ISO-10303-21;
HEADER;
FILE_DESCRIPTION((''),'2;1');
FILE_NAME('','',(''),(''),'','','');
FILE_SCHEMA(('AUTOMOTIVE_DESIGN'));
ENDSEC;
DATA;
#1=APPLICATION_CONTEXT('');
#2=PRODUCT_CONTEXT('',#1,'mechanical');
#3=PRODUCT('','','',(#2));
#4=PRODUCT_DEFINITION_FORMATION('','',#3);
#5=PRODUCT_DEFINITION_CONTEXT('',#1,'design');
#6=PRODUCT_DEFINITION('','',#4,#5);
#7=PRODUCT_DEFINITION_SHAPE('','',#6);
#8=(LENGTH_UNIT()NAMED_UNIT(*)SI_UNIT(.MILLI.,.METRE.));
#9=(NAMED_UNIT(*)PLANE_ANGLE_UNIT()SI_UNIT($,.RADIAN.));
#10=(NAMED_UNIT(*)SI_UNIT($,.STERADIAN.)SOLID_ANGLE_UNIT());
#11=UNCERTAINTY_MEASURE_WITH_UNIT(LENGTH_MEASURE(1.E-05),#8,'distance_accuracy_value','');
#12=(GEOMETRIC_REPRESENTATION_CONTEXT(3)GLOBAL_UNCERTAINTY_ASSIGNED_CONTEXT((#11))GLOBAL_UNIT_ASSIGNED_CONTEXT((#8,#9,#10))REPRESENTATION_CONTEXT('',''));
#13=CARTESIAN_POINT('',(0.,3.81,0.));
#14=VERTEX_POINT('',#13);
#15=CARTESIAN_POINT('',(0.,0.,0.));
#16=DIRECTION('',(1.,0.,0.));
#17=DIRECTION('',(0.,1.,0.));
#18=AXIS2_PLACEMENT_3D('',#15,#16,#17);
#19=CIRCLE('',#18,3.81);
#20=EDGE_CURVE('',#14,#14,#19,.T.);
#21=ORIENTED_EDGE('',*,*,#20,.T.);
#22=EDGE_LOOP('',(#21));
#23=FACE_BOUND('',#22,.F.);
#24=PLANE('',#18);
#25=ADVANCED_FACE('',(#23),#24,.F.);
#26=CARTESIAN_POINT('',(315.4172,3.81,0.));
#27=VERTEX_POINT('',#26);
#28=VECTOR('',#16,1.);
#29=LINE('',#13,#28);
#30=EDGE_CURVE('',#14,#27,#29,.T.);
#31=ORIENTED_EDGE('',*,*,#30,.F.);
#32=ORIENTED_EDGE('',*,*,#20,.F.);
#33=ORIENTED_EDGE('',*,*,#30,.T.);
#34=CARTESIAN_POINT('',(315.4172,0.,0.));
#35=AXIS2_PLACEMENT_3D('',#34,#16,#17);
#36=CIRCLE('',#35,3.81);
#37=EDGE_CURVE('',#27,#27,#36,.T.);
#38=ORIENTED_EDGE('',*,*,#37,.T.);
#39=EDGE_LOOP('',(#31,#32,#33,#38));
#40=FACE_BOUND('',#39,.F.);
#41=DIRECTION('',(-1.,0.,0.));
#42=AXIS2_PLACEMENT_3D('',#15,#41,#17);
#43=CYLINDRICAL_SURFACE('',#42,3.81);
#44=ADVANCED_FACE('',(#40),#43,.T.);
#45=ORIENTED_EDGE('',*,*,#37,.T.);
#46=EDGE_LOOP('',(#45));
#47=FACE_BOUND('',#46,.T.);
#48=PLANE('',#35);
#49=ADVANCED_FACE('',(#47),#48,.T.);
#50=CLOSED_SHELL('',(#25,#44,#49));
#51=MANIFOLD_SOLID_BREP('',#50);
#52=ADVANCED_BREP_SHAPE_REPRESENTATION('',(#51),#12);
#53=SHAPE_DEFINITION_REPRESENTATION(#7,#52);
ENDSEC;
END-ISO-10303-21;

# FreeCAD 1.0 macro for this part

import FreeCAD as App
import Part
import Sketcher

V = App.Vector
Q = App.Units.Quantity

doc = App.newDocument("Part")
params = doc.addObject("Spreadsheet::Sheet", "Params")
for row, (alias, value) in enumerate([
    ("sketch1_diameter", "0.3 in"),
    ("pad1_length", "12.418 in"),
], start=1):
    params.set(f"A{row}", alias)
    params.set(f"B{row}", "=" + value)
    params.setAlias(f"B{row}", alias)

body = doc.addObject("PartDesign::Body", "Body")

sketch1 = body.newObject("Sketcher::SketchObject", "Sketch")
sketch1.AttachmentSupport = (doc.getObject("YZ_Plane"), [""])
sketch1.MapMode = "FlatFace"
sketch1.addGeometry(Part.Circle(V(0, 0, 0), V(0, 0, 1), 3.81), False)
sketch1.addConstraint([
    Sketcher.Constraint("Coincident", 0, 3, -1, 1),
    Sketcher.Constraint("Diameter", 0, Q("0.3 in")),
])
sketch1.setExpression("Constraints[1]", "Params.sketch1_diameter")
pad1 = body.newObject("PartDesign::Pad", "Pad")
pad1.Profile = sketch1
pad1.setExpression("Length", "Params.pad1_length")

doc.recompute()
